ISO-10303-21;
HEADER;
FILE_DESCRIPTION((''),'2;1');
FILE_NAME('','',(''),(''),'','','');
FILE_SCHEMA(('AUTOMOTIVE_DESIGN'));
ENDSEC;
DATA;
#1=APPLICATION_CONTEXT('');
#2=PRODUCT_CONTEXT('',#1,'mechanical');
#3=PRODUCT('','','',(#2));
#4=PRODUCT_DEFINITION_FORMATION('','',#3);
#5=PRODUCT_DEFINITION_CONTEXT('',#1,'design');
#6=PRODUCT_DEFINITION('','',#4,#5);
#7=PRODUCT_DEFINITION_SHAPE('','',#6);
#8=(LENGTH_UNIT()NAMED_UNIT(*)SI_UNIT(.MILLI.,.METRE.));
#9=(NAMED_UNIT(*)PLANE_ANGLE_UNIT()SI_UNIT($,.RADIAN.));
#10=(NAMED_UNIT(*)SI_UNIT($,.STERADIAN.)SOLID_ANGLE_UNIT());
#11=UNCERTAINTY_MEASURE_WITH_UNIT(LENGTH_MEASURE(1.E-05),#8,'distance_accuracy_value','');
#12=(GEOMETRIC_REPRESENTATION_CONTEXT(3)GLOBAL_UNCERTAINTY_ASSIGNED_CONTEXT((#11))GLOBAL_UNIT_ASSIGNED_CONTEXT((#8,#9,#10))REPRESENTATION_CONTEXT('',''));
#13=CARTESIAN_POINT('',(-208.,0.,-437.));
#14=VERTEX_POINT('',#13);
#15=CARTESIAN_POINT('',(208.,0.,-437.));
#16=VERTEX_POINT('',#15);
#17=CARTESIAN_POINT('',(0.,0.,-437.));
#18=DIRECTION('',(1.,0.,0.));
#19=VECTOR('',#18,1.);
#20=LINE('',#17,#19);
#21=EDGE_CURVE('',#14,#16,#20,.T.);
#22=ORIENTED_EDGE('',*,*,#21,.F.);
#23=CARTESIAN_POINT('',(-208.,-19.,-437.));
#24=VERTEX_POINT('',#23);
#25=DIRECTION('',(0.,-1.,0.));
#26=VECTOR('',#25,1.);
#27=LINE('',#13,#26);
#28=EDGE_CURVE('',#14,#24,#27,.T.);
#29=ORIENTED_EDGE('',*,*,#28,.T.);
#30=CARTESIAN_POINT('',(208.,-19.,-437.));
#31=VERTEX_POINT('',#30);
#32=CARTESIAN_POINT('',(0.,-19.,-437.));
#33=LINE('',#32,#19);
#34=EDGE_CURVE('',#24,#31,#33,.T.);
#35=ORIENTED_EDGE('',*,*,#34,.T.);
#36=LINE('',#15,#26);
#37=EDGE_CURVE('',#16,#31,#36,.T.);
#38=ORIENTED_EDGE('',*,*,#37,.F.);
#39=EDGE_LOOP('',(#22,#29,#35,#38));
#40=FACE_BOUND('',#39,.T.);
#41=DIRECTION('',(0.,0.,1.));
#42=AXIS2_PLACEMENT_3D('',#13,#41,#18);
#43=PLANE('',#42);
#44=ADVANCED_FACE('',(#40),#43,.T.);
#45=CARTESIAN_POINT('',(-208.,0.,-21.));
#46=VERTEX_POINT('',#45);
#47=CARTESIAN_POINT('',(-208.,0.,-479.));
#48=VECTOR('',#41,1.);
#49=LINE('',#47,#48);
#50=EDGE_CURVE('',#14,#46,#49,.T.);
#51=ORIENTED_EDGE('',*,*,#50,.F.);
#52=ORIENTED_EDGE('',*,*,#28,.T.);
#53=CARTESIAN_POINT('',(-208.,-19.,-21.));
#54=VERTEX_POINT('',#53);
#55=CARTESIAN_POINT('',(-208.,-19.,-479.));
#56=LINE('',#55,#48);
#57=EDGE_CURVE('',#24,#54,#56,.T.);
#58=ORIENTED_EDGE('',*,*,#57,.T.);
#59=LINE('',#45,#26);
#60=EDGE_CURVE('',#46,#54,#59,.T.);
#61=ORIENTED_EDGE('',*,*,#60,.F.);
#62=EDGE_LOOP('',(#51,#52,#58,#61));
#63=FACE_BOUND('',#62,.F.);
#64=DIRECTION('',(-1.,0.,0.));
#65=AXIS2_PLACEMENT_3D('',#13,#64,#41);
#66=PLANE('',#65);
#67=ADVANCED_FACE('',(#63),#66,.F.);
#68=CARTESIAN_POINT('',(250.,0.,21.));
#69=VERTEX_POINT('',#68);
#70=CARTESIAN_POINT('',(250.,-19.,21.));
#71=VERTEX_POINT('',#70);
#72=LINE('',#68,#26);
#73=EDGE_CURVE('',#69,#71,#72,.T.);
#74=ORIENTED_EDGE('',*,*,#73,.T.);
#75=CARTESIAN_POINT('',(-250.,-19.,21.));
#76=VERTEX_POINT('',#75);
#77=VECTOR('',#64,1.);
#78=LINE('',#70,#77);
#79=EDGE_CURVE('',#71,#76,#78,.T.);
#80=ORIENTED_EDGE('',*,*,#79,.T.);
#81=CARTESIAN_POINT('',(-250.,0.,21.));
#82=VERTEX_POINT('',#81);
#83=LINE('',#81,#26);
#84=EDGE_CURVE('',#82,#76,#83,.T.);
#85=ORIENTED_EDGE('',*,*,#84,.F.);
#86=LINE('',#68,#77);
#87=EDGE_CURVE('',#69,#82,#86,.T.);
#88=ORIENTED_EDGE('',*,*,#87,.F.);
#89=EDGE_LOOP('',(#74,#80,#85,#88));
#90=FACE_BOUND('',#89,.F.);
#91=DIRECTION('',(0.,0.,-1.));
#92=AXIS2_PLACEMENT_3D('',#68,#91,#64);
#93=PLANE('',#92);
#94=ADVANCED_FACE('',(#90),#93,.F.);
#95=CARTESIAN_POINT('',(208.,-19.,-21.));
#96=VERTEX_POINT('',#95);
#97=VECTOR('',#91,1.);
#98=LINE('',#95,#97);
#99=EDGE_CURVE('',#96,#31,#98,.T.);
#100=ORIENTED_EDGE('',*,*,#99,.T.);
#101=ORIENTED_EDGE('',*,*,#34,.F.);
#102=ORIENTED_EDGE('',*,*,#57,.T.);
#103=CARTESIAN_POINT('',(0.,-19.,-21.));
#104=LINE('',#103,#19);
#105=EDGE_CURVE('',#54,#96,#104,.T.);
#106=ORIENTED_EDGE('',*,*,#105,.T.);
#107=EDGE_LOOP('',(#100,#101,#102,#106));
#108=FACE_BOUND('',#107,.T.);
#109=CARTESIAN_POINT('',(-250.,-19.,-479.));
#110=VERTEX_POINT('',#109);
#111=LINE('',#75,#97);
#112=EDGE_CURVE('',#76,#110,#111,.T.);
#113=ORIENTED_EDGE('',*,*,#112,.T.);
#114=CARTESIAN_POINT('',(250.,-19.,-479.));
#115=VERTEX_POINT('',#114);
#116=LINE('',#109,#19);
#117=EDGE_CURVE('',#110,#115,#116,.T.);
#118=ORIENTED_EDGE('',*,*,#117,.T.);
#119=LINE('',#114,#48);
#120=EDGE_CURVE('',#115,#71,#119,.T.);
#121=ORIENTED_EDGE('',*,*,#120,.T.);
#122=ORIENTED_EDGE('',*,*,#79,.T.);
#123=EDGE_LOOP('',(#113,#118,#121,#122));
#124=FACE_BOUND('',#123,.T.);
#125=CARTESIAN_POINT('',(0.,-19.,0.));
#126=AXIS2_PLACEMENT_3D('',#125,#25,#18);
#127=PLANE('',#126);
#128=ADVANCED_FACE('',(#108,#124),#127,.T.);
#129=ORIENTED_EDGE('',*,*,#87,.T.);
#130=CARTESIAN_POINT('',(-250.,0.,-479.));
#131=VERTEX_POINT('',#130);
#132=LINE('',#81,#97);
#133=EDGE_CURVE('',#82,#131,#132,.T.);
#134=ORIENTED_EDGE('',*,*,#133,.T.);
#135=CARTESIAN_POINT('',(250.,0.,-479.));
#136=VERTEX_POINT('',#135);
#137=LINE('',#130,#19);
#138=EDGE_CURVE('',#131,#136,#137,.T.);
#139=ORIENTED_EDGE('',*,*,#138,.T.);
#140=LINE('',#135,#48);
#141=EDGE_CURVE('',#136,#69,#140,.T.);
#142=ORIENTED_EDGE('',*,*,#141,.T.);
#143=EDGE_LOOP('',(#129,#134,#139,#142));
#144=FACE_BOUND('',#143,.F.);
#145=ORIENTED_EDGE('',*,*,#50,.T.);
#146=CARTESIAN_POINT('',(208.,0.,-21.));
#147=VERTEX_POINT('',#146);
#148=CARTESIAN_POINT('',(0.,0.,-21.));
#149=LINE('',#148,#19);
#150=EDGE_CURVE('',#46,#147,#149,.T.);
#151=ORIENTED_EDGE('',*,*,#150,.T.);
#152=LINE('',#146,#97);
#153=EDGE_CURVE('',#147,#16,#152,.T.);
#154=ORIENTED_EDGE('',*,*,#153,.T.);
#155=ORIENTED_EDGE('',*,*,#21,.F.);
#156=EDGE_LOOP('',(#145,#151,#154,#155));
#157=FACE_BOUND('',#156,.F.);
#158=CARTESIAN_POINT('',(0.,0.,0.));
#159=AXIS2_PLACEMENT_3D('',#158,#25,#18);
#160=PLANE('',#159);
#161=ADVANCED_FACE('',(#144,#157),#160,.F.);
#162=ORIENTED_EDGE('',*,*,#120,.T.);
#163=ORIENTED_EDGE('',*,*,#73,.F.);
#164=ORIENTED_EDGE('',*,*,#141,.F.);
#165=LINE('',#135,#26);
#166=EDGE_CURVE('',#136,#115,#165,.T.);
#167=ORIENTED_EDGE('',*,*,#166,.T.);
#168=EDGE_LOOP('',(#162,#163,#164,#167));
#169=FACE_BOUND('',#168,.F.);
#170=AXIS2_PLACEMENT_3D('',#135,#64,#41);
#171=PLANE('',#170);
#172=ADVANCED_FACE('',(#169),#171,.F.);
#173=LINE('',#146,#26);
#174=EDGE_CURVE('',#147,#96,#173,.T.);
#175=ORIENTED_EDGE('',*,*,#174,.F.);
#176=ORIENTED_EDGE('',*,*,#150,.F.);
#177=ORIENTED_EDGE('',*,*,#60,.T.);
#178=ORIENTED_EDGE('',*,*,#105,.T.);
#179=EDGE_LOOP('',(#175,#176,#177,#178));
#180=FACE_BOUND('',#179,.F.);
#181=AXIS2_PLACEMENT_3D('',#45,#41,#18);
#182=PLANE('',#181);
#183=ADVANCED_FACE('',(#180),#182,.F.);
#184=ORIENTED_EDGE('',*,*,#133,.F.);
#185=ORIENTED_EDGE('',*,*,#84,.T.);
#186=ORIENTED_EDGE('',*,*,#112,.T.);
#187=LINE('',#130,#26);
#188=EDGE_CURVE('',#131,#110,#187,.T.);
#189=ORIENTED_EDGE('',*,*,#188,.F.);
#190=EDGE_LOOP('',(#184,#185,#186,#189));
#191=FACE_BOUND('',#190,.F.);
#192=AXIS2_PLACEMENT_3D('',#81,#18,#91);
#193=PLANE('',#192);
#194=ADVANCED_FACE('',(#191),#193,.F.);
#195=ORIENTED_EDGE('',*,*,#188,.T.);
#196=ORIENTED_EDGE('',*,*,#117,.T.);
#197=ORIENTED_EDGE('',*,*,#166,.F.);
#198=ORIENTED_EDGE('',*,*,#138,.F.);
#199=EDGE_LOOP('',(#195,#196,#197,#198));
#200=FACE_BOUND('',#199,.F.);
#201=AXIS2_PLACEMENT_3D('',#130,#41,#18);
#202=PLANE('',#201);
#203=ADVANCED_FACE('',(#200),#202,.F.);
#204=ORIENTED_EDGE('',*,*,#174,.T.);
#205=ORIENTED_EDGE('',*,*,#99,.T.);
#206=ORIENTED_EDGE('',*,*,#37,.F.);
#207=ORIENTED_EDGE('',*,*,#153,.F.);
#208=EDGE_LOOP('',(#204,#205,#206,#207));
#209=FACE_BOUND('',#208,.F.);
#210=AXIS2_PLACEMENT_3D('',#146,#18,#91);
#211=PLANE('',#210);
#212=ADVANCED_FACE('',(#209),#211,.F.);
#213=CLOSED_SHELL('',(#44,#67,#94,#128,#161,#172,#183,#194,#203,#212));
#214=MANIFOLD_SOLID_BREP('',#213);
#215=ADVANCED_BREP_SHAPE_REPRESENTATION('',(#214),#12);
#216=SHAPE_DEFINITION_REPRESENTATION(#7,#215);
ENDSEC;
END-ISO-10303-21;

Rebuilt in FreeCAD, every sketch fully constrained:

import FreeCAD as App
import Part
import Sketcher
from FreeCAD import Vector
Q = App.Units.Quantity


def add_polygon(sketch, points):
    """Adds a closed chain of lines whose ends are joined by coincident constraints."""
    first, n = sketch.GeometryCount, len(points)
    for a, b in zip(points, points[1:] + points[:1]):
        sketch.addGeometry(Part.LineSegment(App.Vector(*a, 0), App.Vector(*b, 0)), False)
    for i in range(n):
        sketch.addConstraint(Sketcher.Constraint("Coincident", first + i, 2, first + (i + 1) % n, 1))

doc = App.newDocument("Part")
body = doc.addObject("PartDesign::Body", "Body")

sketch1 = body.newObject("Sketcher::SketchObject", "Sketch")
sketch1.AttachmentSupport = (doc.getObject("XZ_Plane"), [""])
sketch1.MapMode = "FlatFace"
add_polygon(sketch1, [(250, -479), (250, 21), (-250, 21), (-250, -479)])
add_polygon(sketch1, [(-208, -21), (208, -21), (208, -437), (-208, -437)])
sketch1.addConstraint(Sketcher.Constraint("Vertical", 0))
sketch1.addConstraint(Sketcher.Constraint("Horizontal", 1))
sketch1.addConstraint(Sketcher.Constraint("Vertical", 2))
sketch1.addConstraint(Sketcher.Constraint("Horizontal", 3))
sketch1.addConstraint(Sketcher.Constraint("Horizontal", 4))
sketch1.addConstraint(Sketcher.Constraint("Vertical", 5))
sketch1.addConstraint(Sketcher.Constraint("Horizontal", 6))
sketch1.addConstraint(Sketcher.Constraint("Vertical", 7))
sketch1.addConstraint(Sketcher.Constraint("Equal", 3, 0))
sketch1.addConstraint(Sketcher.Constraint("Equal", 6, 5))
sketch1.addConstraint(Sketcher.Constraint("DistanceX", 1, 2, 1, 1, Q("500 mm")))
sketch1.addConstraint(Sketcher.Constraint("DistanceX", 4, 1, 4, 2, Q("416 mm")))
sketch1.addConstraint(Sketcher.Constraint("DistanceX", -1, 1, 0, 2, Q("250 mm")))
sketch1.addConstraint(Sketcher.Constraint("DistanceY", -1, 1, 0, 2, Q("21 mm")))
sketch1.addConstraint(Sketcher.Constraint("DistanceX", -1, 1, 4, 2, Q("208 mm")))
sketch1.addConstraint(Sketcher.Constraint("DistanceY", 4, 2, -1, 1, Q("21 mm")))
pad1 = body.newObject("PartDesign::Pad", "Pad")
pad1.Profile = sketch1
pad1.Length = 19

doc.recompute()
